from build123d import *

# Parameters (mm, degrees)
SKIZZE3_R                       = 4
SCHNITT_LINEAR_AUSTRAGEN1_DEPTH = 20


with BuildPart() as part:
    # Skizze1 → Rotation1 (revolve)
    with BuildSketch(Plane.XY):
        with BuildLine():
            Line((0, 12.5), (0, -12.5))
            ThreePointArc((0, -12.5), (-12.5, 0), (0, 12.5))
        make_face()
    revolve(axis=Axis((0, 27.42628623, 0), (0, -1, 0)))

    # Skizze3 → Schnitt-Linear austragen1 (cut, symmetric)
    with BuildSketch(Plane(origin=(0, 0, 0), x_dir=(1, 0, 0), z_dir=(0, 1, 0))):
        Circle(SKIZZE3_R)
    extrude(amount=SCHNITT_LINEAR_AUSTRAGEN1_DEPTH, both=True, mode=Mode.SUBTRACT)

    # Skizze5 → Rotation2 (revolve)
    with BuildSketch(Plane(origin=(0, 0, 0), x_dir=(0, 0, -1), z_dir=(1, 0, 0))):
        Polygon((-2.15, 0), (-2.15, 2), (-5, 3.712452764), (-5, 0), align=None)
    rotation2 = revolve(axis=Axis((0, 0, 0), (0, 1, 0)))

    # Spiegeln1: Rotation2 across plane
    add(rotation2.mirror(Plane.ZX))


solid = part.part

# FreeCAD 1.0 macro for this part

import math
import FreeCAD as App
import Part
import Sketcher
Q = App.Units.Quantity

doc = App.newDocument("Part")
body = doc.addObject("PartDesign::Body", "Body")

sketch1 = body.newObject("Sketcher::SketchObject", "Sketch")
sketch1.AttachmentSupport = (doc.getObject("XY_Plane"), [""])
sketch1.MapMode = "FlatFace"
sketch1.addGeometry(Part.LineSegment(App.Vector(0, -12, 0), App.Vector(0, 12, 0)), False)
sketch1.addGeometry(Part.ArcOfCircle(Part.Circle(App.Vector(0, 0, 0), App.Vector(0, 0, 1), 12), math.radians(90), math.radians(270)), False)
sketch1.addConstraint(Sketcher.Constraint("Coincident", 0, 1, 1, 2))
sketch1.addConstraint(Sketcher.Constraint("Coincident", 1, 1, 0, 2))
sketch1.addConstraint(Sketcher.Constraint("Vertical", 0))
sketch1.addConstraint(Sketcher.Constraint("Coincident", 1, 3, -1, 1))
sketch1.addConstraint(Sketcher.Constraint("PointOnObject", 0, 1, -2))
sketch1.addConstraint(Sketcher.Constraint("Radius", 1, Q("12.5 mm")))
revolution = body.newObject("PartDesign::Revolution", "Revolution")
revolution.Profile = sketch1
revolution.ReferenceAxis = (sketch1, ["V_Axis"])
revolution.Angle = 360

sketch2 = body.newObject("Sketcher::SketchObject", "Sketch001")
sketch2.AttachmentSupport = (doc.getObject("XZ_Plane"), [""])
sketch2.MapMode = "FlatFace"
sketch2.addGeometry(Part.Circle(App.Vector(0, 0, 0), App.Vector(0, 0, 1), 4), False)
sketch2.addConstraint(Sketcher.Constraint("Coincident", 0, 3, -1, 1))
sketch2.addConstraint(Sketcher.Constraint("Diameter", 0, Q("8 mm")))
pocket1 = body.newObject("PartDesign::Pocket", "Pocket")
pocket1.Profile = sketch2
pocket1.Length = 40
pocket1.Midplane = True

sketch3 = body.newObject("Sketcher::SketchObject", "Sketch002")
sketch3.AttachmentSupport = (doc.getObject("YZ_Plane"), [""])
sketch3.MapMode = "FlatFace"
sketch3.addGeometry(Part.LineSegment(App.Vector(0, 2.1, 0), App.Vector(2, 2.1, 0)), False)
sketch3.addGeometry(Part.LineSegment(App.Vector(2, 2.1, 0), App.Vector(3.7, 5, 0)), False)
sketch3.addGeometry(Part.LineSegment(App.Vector(3.7, 5, 0), App.Vector(0, 5, 0)), False)
sketch3.addGeometry(Part.LineSegment(App.Vector(0, 5, 0), App.Vector(0, 2.1, 0)), False)
sketch3.addConstraint(Sketcher.Constraint("Coincident", 0, 2, 1, 1))
sketch3.addConstraint(Sketcher.Constraint("Coincident", 1, 2, 2, 1))
sketch3.addConstraint(Sketcher.Constraint("Coincident", 2, 2, 3, 1))
sketch3.addConstraint(Sketcher.Constraint("Coincident", 3, 2, 0, 1))
sketch3.addConstraint(Sketcher.Constraint("Horizontal", 0))
sketch3.addConstraint(Sketcher.Constraint("Horizontal", 2))
sketch3.addConstraint(Sketcher.Constraint("Vertical", 3))
sketch3.addConstraint(Sketcher.Constraint("PointOnObject", 2, 2, -2))
sketch3.addConstraint(Sketcher.Constraint("DistanceX", 0, 1, 0, 2, Q("2 mm")))
sketch3.addConstraint(Sketcher.Constraint("Angle", 1, Q("59 deg")))
sketch3.addConstraint(Sketcher.Constraint("DistanceY", -1, 1, 1, 2, Q("5 mm")))
sketch3.addConstraint(Sketcher.Constraint("DistanceY", 3, 2, 3, 1, Q("2.85 mm")))
revolution2 = body.newObject("PartDesign::Revolution", "Revolution001")
revolution2.Profile = sketch3
revolution2.ReferenceAxis = (sketch3, ["H_Axis"])
revolution2.Angle = 360
doc.recompute()

mirrored = body.newObject("PartDesign::Mirrored", "Mirrored")
mirrored.Originals = [revolution2]
mirrored.MirrorPlane = (doc.getObject("XZ_Plane"), [""])
body.Tip = mirrored

doc.recompute()
